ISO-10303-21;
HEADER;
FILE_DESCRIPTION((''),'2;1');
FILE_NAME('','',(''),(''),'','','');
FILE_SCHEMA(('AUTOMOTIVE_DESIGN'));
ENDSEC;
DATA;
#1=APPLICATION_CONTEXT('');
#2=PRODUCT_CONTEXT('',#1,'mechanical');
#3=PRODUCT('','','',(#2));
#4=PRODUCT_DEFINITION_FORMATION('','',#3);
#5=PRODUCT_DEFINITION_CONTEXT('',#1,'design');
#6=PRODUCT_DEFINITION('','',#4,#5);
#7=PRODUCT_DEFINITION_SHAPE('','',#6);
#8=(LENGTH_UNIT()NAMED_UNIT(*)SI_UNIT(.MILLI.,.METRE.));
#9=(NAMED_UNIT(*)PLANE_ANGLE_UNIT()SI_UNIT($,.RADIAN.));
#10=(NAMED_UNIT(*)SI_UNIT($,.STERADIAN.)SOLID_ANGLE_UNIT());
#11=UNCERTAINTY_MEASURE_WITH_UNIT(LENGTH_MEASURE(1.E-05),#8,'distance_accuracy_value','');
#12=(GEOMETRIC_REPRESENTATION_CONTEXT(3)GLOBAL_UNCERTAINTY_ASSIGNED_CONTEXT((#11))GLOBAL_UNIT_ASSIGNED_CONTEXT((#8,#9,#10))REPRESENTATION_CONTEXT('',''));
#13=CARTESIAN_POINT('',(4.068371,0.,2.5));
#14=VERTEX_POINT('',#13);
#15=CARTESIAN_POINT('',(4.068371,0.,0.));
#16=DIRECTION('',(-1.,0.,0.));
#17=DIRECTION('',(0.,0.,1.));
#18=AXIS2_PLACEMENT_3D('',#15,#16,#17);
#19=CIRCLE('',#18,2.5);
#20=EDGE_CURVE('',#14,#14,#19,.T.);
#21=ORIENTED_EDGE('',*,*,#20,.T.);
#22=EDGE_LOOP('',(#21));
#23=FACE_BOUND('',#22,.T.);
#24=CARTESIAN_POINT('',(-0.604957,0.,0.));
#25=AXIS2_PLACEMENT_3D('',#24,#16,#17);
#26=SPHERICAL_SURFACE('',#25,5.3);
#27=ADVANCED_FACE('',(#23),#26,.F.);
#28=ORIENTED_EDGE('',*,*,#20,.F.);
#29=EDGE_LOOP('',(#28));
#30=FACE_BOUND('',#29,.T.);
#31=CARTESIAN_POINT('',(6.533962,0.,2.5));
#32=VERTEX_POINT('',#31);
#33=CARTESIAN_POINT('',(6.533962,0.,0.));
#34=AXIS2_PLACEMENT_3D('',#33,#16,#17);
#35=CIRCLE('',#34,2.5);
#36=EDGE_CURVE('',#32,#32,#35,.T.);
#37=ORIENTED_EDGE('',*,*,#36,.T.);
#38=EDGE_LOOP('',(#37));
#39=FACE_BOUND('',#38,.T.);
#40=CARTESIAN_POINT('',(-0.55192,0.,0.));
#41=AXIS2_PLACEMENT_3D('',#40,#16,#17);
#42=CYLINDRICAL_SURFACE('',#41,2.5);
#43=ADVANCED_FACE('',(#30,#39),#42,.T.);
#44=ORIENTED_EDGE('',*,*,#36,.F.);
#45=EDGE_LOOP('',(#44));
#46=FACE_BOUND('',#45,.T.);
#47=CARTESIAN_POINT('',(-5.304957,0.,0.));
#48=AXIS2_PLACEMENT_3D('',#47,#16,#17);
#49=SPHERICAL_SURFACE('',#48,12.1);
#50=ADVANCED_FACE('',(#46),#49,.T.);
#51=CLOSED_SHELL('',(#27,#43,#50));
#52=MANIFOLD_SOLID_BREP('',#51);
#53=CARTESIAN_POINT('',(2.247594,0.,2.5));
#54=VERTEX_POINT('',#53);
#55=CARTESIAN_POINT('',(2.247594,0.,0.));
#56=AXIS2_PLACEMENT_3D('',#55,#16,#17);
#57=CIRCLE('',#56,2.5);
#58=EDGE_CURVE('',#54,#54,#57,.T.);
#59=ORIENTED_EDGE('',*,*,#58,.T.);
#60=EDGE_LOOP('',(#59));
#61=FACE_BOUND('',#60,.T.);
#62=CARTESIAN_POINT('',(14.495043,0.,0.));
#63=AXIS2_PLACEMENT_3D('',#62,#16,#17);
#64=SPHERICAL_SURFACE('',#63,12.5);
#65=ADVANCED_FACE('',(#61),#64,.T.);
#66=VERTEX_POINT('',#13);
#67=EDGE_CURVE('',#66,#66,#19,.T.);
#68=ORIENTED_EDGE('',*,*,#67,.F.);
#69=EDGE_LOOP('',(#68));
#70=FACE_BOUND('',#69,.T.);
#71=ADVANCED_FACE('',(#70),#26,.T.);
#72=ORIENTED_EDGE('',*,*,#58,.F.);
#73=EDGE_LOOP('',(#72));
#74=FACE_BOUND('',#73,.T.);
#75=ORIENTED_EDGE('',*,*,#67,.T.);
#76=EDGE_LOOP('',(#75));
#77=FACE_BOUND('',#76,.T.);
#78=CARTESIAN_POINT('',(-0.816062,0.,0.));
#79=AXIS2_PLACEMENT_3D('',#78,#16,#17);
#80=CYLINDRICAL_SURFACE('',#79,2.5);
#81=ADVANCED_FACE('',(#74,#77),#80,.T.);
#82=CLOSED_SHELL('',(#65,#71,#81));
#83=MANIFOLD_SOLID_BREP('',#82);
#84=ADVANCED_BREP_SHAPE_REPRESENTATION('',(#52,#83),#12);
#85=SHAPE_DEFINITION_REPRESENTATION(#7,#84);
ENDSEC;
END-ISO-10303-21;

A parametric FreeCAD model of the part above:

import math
import FreeCAD as App
import Part
import Sketcher
from FreeCAD import Vector

doc = App.newDocument("Part")
params = doc.addObject("Spreadsheet::Sheet", "Params")
for row, (alias, value) in enumerate([
    ("sketch1_radius", "12.5 mm"),
    ("sketch1_radius2", "5.3 mm"),
    ("sketch1_width", "2.7 mm"),
    ("revolution_angle", "360 deg"),
    ("sketch2_radius", "5.3 mm"),
    ("sketch2_radius2", "12.1 mm"),
    ("sketch2_width", "2.1 mm"),
    ("revolution2_angle", "360 deg"),
], start=1):
    params.set(f"A{row}", alias)
    params.set(f"B{row}", "=" + value)
    params.setAlias(f"B{row}", alias)

body = doc.addObject("PartDesign::Body", "Body")

# Sketch on XZ plane
sketch1 = body.newObject("Sketcher::SketchObject", "Sketch")
sketch1.AttachmentSupport = (doc.getObject("XZ_Plane"), [""])
sketch1.MapMode = "FlatFace"
sketch1.addGeometry([
    Part.ArcOfCircle(Part.Circle(Vector(14.5, 0, 0), Vector(0, 0, 1), 12.5), math.radians(180), math.radians(191.54)),
    Part.LineSegment(Vector(2, 0, 0), Vector(4.7, 0, 0)),
    Part.ArcOfCircle(Part.Circle(Vector(-0.6, 0, 0), Vector(0, 0, 1), 5.3), math.radians(-28), math.radians(0)),
    Part.LineSegment(Vector(4.1, -2.5, 0), Vector(2.2, -2.5, 0)),
], False)
sketch1.addConstraint([
    Sketcher.Constraint("Coincident", 0, 1, 1, 1),
    Sketcher.Constraint("Coincident", 1, 2, 2, 2),
    Sketcher.Constraint("Coincident", 2, 1, 3, 1),
    Sketcher.Constraint("Coincident", 3, 2, 0, 2),
    Sketcher.Constraint("Horizontal", 1),
    Sketcher.Constraint("Horizontal", 3),
    Sketcher.Constraint("PointOnObject", 0, 3, -1),
    Sketcher.Constraint("PointOnObject", 2, 3, -1),
    Sketcher.Constraint("PointOnObject", 0, 1, -1),
    Sketcher.Constraint("Radius", 0, 12.5),
    Sketcher.Constraint("Radius", 2, 5.3),
    Sketcher.Constraint("DistanceX", 1, 1, 1, 2, 2.7),
    Sketcher.Constraint("DistanceY", 2, 1, -1, 1, 2.5),
    Sketcher.Constraint("DistanceX", -1, 1, 2, 1, 4.068371),
])
sketch1.setExpression("Constraints[9]", "Params.sketch1_radius")
sketch1.setExpression("Constraints[10]", "Params.sketch1_radius2")
sketch1.setExpression("Constraints[11]", "Params.sketch1_width")
revolution = body.newObject("PartDesign::Revolution", "Revolution")
revolution.Profile = sketch1
revolution.ReferenceAxis = (sketch1, ["H_Axis"])
revolution.setExpression("Angle", "Params.revolution_angle")
body2 = doc.addObject("PartDesign::Body", "Body001")

# Sketch on XZ plane
sketch2 = body2.newObject("Sketcher::SketchObject", "Sketch001")
sketch2.AttachmentSupport = (doc.getObject("XZ_Plane001"), [""])
sketch2.MapMode = "FlatFace"
sketch2.addGeometry([
    Part.LineSegment(Vector(6.5, -2.5, 0), Vector(4.1, -2.5, 0)),
    Part.ArcOfCircle(Part.Circle(Vector(-0.6, 0, 0), Vector(0, 0, 1), 5.3), math.radians(-28), math.radians(0)),
    Part.LineSegment(Vector(4.7, 0, 0), Vector(6.8, 0, 0)),
    Part.ArcOfCircle(Part.Circle(Vector(-5.3, 0, 0), Vector(0, 0, 1), 12.1), math.radians(-11.92), math.radians(0)),
], False)
sketch2.addConstraint([
    Sketcher.Constraint("Coincident", 0, 2, 1, 1),
    Sketcher.Constraint("Coincident", 1, 2, 2, 1),
    Sketcher.Constraint("Coincident", 2, 2, 3, 2),
    Sketcher.Constraint("Coincident", 3, 1, 0, 1),
    Sketcher.Constraint("Horizontal", 0),
    Sketcher.Constraint("Horizontal", 2),
    Sketcher.Constraint("PointOnObject", 1, 3, -1),
    Sketcher.Constraint("PointOnObject", 3, 3, -1),
    Sketcher.Constraint("PointOnObject", 1, 2, -1),
    Sketcher.Constraint("Radius", 1, 5.3),
    Sketcher.Constraint("Radius", 3, 12.1),
    Sketcher.Constraint("DistanceX", 2, 1, 2, 2, 2.1),
    Sketcher.Constraint("DistanceY", 0, 2, -1, 1, 2.5),
    Sketcher.Constraint("DistanceX", -1, 1, 0, 2, 4.068371),
])
sketch2.setExpression("Constraints[9]", "Params.sketch2_radius")
sketch2.setExpression("Constraints[10]", "Params.sketch2_radius2")
sketch2.setExpression("Constraints[11]", "Params.sketch2_width")
revolution2 = body2.newObject("PartDesign::Revolution", "Revolution001")
revolution2.Profile = sketch2
revolution2.ReferenceAxis = (sketch2, ["H_Axis"])
revolution2.setExpression("Angle", "Params.revolution2_angle")

doc.recompute()
